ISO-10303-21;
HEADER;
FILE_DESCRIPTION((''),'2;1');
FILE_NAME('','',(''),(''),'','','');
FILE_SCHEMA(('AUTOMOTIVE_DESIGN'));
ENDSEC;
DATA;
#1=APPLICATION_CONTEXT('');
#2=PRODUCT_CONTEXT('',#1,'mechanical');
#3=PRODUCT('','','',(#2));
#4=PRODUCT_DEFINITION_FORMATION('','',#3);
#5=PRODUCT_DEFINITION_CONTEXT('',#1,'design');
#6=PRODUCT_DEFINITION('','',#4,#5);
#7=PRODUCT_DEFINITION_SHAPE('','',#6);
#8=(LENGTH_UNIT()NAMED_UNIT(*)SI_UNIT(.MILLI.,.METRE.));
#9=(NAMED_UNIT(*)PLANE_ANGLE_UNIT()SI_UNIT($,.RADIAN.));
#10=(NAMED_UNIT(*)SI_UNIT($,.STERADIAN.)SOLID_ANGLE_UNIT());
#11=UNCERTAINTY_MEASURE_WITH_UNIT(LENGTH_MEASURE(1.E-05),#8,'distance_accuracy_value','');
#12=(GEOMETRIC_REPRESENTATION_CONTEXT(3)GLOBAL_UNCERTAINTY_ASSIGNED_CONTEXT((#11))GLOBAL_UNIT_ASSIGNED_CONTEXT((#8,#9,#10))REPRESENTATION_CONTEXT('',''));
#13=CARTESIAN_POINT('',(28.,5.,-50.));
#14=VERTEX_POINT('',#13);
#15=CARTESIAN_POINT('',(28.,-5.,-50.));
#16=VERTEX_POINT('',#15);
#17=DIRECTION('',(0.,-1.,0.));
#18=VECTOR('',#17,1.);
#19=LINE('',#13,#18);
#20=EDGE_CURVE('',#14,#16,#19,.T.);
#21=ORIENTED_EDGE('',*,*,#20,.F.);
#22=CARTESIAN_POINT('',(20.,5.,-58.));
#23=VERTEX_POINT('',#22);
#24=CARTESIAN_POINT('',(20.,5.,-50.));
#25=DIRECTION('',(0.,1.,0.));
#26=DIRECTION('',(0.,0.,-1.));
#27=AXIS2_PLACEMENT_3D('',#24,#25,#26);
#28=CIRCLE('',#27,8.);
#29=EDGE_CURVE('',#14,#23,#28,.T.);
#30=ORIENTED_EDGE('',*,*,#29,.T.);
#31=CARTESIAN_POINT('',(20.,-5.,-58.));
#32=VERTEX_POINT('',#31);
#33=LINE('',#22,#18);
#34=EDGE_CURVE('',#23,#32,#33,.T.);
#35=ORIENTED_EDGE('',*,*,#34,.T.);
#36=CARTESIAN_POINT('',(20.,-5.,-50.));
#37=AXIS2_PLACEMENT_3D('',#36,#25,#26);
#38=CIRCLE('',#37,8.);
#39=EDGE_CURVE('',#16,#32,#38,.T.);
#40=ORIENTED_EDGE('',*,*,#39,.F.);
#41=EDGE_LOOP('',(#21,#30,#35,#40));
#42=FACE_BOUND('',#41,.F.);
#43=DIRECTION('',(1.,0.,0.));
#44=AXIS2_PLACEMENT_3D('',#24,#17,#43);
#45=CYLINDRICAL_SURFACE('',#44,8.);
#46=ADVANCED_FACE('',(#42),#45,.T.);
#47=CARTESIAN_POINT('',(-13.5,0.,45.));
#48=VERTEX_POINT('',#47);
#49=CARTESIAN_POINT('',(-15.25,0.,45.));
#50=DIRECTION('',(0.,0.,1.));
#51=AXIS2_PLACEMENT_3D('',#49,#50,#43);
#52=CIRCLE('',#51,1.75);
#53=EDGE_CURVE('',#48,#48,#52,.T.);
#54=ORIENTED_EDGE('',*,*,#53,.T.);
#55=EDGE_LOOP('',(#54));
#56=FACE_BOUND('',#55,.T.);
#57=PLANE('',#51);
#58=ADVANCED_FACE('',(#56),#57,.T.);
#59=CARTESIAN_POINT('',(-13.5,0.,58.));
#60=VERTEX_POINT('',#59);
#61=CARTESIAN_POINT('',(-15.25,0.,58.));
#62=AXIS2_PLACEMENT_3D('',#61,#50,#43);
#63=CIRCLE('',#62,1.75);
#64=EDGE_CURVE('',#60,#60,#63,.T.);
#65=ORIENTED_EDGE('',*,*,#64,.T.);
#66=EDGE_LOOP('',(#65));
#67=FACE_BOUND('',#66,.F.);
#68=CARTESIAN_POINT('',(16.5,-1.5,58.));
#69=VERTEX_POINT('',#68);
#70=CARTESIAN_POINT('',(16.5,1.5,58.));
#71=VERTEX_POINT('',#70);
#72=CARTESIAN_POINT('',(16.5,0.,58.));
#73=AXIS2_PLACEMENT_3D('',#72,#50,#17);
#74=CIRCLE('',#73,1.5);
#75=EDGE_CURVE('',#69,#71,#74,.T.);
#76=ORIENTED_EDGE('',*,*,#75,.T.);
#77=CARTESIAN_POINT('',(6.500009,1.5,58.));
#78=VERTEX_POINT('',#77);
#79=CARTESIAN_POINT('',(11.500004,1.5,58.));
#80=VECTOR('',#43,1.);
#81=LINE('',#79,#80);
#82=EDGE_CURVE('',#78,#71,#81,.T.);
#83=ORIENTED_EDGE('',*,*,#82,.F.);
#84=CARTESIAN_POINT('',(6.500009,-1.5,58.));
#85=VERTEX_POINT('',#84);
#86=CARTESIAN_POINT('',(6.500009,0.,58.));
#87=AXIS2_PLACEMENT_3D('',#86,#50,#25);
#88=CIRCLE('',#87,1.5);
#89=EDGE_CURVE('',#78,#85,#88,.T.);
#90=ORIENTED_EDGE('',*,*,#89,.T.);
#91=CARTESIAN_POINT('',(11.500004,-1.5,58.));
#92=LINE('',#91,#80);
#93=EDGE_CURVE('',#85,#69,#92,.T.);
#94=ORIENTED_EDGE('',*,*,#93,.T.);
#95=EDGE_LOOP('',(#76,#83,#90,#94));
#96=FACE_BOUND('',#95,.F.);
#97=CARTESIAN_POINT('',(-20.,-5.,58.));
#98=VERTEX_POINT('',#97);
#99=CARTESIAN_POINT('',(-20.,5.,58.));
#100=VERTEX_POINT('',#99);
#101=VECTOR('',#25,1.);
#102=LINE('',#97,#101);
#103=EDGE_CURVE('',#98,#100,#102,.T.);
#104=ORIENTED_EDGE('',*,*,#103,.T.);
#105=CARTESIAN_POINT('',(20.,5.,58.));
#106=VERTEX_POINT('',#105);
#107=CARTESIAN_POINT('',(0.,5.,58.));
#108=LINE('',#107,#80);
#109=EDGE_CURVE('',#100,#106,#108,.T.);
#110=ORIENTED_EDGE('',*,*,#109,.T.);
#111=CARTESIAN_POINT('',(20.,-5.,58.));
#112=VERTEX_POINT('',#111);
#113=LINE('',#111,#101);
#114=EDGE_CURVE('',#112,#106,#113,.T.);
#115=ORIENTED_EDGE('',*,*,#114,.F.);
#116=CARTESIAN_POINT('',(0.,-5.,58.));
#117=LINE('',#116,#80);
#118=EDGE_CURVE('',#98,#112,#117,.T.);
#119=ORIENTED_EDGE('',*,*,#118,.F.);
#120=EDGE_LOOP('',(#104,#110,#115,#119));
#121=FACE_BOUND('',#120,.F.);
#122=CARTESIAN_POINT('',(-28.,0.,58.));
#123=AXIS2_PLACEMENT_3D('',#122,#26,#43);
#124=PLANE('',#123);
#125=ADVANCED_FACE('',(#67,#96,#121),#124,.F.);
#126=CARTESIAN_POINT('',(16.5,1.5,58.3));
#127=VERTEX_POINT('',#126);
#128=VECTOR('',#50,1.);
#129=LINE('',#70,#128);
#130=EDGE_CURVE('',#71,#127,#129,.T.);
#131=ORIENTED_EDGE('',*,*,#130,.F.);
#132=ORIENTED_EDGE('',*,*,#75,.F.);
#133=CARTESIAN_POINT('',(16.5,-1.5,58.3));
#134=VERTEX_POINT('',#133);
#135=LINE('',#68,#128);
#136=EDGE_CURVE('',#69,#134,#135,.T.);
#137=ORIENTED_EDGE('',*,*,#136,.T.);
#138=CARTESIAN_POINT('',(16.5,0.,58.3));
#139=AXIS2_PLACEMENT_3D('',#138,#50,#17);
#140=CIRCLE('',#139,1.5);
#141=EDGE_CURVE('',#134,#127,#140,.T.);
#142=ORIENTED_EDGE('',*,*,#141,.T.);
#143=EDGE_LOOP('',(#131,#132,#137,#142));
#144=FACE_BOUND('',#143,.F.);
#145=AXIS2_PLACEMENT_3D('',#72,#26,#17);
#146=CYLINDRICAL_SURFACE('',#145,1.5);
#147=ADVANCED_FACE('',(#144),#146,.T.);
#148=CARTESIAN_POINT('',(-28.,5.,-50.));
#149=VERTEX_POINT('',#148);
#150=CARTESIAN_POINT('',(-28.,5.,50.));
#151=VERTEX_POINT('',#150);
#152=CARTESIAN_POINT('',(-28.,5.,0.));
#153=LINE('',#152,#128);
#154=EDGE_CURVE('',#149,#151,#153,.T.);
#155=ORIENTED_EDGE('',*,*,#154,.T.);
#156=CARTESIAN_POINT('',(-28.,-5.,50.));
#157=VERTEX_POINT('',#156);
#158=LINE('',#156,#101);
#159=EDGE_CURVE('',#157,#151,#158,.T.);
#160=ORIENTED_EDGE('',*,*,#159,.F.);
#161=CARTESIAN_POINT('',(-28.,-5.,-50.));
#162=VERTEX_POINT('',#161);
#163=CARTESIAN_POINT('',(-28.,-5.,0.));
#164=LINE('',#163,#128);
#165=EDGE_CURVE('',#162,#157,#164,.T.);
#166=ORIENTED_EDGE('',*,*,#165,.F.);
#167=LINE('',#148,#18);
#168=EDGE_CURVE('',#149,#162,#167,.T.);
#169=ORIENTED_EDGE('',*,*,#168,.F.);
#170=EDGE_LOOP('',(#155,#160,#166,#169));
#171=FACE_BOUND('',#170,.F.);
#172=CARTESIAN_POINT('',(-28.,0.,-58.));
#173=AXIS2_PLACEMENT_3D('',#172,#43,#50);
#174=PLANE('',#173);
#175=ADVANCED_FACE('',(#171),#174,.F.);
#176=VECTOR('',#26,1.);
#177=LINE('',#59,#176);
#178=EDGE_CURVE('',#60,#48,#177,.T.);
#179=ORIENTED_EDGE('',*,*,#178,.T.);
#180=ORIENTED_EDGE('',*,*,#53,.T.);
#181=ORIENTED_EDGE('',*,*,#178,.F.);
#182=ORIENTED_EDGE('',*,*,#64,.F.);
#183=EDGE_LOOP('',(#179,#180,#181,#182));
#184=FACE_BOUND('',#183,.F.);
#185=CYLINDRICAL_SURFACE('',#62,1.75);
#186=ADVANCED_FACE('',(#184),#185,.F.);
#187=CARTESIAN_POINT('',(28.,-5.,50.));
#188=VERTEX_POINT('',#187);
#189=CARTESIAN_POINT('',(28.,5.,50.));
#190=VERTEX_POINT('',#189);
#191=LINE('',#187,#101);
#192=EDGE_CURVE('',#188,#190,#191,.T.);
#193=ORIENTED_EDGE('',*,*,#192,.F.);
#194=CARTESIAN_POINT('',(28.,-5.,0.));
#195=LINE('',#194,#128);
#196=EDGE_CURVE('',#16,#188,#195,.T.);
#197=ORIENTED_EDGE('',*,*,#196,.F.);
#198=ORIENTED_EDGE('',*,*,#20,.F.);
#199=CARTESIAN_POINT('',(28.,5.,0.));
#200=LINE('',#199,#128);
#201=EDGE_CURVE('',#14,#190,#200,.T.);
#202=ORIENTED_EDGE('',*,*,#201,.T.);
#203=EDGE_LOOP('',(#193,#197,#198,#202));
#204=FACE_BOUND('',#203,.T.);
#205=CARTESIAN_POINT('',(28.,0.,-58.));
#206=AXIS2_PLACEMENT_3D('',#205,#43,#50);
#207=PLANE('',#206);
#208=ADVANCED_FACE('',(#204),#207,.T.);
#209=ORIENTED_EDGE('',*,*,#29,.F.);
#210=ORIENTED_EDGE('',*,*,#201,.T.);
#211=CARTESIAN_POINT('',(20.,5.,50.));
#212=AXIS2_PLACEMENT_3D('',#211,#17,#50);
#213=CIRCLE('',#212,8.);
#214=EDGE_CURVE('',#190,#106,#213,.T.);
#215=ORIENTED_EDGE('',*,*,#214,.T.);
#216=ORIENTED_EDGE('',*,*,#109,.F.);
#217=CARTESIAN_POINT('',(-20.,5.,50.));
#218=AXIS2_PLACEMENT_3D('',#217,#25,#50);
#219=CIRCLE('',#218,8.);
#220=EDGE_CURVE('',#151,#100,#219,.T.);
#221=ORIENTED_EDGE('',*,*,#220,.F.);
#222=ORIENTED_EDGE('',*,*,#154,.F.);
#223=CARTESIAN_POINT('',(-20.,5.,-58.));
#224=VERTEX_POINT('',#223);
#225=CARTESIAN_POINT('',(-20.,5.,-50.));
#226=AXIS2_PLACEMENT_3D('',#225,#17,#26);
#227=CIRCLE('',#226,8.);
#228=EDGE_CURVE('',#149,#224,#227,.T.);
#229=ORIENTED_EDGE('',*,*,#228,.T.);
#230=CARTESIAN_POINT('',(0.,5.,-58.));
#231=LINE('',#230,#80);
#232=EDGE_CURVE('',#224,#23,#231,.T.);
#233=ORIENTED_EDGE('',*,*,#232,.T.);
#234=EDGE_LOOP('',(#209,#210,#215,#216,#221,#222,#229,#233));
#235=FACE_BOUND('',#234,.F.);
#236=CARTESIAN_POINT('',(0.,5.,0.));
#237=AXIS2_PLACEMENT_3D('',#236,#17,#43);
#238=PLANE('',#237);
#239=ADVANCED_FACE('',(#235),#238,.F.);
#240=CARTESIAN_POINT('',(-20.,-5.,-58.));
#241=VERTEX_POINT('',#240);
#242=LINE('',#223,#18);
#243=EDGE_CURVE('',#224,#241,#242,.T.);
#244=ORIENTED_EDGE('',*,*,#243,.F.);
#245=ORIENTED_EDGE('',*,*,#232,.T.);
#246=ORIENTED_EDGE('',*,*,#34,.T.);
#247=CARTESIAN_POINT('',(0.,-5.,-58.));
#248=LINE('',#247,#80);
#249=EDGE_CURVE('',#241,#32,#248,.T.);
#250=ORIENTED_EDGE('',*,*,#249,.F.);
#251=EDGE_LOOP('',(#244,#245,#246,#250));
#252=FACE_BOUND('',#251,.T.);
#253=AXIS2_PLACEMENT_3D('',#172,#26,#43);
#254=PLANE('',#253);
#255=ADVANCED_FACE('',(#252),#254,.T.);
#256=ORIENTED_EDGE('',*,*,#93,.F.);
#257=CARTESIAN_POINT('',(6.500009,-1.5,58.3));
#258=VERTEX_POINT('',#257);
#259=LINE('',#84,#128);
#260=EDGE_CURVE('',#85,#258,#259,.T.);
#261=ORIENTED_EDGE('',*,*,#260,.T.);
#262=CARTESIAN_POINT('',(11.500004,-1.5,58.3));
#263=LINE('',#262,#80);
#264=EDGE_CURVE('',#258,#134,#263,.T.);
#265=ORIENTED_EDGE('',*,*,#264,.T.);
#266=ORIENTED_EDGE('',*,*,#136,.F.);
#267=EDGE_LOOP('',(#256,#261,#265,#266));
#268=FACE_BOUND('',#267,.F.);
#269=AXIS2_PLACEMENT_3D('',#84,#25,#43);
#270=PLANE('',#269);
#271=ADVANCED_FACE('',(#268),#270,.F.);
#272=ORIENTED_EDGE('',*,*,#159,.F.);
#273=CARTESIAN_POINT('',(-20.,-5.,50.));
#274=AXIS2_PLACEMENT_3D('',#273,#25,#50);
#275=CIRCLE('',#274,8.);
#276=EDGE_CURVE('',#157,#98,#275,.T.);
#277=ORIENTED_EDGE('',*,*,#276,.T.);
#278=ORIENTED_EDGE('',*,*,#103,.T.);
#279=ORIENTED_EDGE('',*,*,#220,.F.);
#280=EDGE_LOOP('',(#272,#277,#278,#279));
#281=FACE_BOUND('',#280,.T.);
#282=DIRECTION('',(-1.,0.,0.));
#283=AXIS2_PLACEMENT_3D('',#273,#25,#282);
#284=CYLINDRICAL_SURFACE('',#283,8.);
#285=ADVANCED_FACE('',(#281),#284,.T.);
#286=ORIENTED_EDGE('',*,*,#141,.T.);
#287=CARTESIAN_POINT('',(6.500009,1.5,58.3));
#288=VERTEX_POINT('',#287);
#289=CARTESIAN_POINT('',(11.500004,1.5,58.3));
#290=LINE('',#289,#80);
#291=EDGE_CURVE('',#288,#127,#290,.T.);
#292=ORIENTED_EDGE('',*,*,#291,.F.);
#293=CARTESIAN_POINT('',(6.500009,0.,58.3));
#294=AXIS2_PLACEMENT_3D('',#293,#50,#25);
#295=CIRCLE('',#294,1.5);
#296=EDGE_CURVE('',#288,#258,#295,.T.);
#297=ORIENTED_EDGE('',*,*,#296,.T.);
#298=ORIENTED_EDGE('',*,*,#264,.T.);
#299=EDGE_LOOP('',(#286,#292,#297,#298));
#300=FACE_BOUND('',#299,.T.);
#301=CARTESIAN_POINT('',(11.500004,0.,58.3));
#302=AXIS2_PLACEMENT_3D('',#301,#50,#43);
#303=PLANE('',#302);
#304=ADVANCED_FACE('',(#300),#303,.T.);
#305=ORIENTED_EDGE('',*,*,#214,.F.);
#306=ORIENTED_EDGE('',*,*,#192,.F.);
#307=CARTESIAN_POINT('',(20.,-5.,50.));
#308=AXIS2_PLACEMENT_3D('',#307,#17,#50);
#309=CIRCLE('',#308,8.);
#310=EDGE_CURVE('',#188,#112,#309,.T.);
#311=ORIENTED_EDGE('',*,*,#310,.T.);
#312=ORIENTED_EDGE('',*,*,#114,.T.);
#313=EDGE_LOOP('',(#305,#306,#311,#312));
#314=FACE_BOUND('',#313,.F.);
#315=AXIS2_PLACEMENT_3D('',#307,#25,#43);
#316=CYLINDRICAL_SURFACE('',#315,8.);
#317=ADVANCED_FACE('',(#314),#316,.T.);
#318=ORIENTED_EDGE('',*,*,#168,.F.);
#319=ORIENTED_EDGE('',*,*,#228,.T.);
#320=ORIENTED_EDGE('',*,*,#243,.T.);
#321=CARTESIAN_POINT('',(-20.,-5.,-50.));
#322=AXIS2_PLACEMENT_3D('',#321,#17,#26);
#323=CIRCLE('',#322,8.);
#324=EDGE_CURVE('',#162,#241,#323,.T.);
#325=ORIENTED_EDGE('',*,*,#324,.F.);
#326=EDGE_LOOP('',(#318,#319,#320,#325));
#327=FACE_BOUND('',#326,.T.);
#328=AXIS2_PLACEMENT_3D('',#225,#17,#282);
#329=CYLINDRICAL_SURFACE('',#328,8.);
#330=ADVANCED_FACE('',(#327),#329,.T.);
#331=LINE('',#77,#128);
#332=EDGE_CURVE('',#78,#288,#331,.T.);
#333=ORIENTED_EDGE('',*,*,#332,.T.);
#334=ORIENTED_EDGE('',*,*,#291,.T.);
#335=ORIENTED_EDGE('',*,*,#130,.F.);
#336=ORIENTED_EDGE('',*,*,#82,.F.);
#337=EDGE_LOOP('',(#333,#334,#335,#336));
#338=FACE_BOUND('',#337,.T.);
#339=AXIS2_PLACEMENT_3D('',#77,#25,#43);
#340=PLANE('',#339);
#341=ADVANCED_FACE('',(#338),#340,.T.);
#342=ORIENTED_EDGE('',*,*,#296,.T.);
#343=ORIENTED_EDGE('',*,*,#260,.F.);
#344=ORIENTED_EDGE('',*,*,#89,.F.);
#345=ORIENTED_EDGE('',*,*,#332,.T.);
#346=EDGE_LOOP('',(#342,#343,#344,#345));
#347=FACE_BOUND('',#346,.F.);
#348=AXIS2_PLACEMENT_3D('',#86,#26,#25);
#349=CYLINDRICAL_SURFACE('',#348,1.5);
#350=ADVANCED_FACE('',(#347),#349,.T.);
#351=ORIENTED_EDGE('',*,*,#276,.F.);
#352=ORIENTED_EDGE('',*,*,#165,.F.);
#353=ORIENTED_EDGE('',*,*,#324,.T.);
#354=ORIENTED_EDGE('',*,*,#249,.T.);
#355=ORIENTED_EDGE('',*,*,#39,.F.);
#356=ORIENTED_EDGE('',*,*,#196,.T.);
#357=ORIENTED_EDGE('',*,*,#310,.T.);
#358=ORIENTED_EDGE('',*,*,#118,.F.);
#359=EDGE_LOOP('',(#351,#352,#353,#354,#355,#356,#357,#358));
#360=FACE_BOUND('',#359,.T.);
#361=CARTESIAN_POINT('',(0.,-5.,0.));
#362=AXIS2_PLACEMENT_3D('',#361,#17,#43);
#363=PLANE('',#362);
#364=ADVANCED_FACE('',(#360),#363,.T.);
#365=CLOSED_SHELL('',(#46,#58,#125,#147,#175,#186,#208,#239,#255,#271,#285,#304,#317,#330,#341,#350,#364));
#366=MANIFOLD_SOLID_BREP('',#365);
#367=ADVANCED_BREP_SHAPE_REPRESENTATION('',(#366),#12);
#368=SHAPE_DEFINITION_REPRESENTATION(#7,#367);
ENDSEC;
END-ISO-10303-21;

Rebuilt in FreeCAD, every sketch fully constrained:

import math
import FreeCAD as App
import Part
import Sketcher

V = App.Vector
Q = App.Units.Quantity


def edges_at(feature, points):
    """Names of the edges that pass closest to the given points."""
    edges = feature.Shape.Edges
    near = lambda p: min(range(len(edges)), key=lambda i: edges[i].distToShape(Part.Vertex(*p))[0])
    return sorted({f"Edge{near(p) + 1}" for p in points})

doc = App.newDocument("Part")
body = doc.addObject("PartDesign::Body", "Body")

sketch1 = body.newObject("Sketcher::SketchObject", "Sketch")
sketch1.AttachmentSupport = (doc.getObject("XZ_Plane"), [""])
sketch1.MapMode = "FlatFace"
sketch1.addGeometry(Part.LineSegment(V(-28, 58, 0), V(-28, -58, 0)), False)
sketch1.addGeometry(Part.LineSegment(V(-28, -58, 0), V(28, -58, 0)), False)
sketch1.addGeometry(Part.LineSegment(V(28, -58, 0), V(28, 58, 0)), False)
sketch1.addGeometry(Part.LineSegment(V(28, 58, 0), V(-28, 58, 0)), False)
sketch1.addConstraint(Sketcher.Constraint("Coincident", 0, 2, 1, 1))
sketch1.addConstraint(Sketcher.Constraint("Coincident", 1, 2, 2, 1))
sketch1.addConstraint(Sketcher.Constraint("Coincident", 2, 2, 3, 1))
sketch1.addConstraint(Sketcher.Constraint("Coincident", 3, 2, 0, 1))
sketch1.addConstraint(Sketcher.Constraint("Vertical", 0))
sketch1.addConstraint(Sketcher.Constraint("Horizontal", 1))
sketch1.addConstraint(Sketcher.Constraint("Vertical", 2))
sketch1.addConstraint(Sketcher.Constraint("Horizontal", 3))
sketch1.addConstraint(Sketcher.Constraint("Symmetric", 0, 2, 2, 2, -1, 1))
sketch1.addConstraint(Sketcher.Constraint("DistanceX", 1, 1, 1, 2, Q("56 mm")))
sketch1.addConstraint(Sketcher.Constraint("DistanceY", 0, 2, 0, 1, Q("116 mm")))
pad1 = body.newObject("PartDesign::Pad", "Pad")
pad1.Profile = sketch1
pad1.Length = 10
pad1.Midplane = True
doc.recompute()

fillet = body.newObject("PartDesign::Fillet", "Fillet")
fillet.Base = (pad1, edges_at(pad1, [
    (-28, 0, 58),
    (28, 0, 58),
    (28, 0, -58),
    (-28, 0, -58),
]))
fillet.Radius = 8

sketch2 = body.newObject("Sketcher::SketchObject", "Sketch001")
sketch2.AttachmentSupport = (doc.getObject("XY_Plane"), [""])
sketch2.MapMode = "FlatFace"
sketch2.AttachmentOffset = App.Placement(V(0, 0, 58), App.Rotation())
sketch2.addGeometry(Part.Circle(V(-15.2, 0, 0), V(0, 0, 1), 1.8), False)
sketch2.addConstraint(Sketcher.Constraint("PointOnObject", 0, 3, -1))
sketch2.addConstraint(Sketcher.Constraint("Diameter", 0, Q("3.5 mm")))
sketch2.addConstraint(Sketcher.Constraint("DistanceX", 0, 3, -1, 1, Q("15.25 mm")))
pocket1 = body.newObject("PartDesign::Pocket", "Pocket")
pocket1.Profile = sketch2
pocket1.Length = 13

sketch3 = body.newObject("Sketcher::SketchObject", "Sketch002")
sketch3.AttachmentSupport = (doc.getObject("XY_Plane"), [""])
sketch3.MapMode = "FlatFace"
sketch3.AttachmentOffset = App.Placement(V(0, 0, 58), App.Rotation())
sketch3.addGeometry(Part.LineSegment(V(6.5, -1.5, 0), V(16.5, -1.5, 0)), False)
sketch3.addGeometry(Part.ArcOfCircle(Part.Circle(V(16.5, 0, 0), V(0, 0, 1), 1.5), math.radians(-90), math.radians(90)), False)
sketch3.addGeometry(Part.LineSegment(V(16.5, 1.5, 0), V(6.5, 1.5, 0)), False)
sketch3.addGeometry(Part.ArcOfCircle(Part.Circle(V(6.5, 0, 0), V(0, 0, 1), 1.5), math.radians(90), math.radians(270)), False)
sketch3.addConstraint(Sketcher.Constraint("Tangent", 0, 2, 1, 1))
sketch3.addConstraint(Sketcher.Constraint("Tangent", 1, 2, 2, 1))
sketch3.addConstraint(Sketcher.Constraint("Tangent", 2, 2, 3, 1))
sketch3.addConstraint(Sketcher.Constraint("Tangent", 3, 2, 0, 1))
sketch3.addConstraint(Sketcher.Constraint("Horizontal", 0))
sketch3.addConstraint(Sketcher.Constraint("Horizontal", 2))
sketch3.addConstraint(Sketcher.Constraint("PointOnObject", 1, 3, -1))
sketch3.addConstraint(Sketcher.Constraint("Radius", 1, Q("1.5 mm")))
sketch3.addConstraint(Sketcher.Constraint("DistanceX", -1, 1, 1, 3, Q("16.5 mm")))
sketch3.addConstraint(Sketcher.Constraint("DistanceX", 0, 1, 0, 2, Q("9.999991 mm")))
pad2 = body.newObject("PartDesign::Pad", "Pad001")
pad2.Profile = sketch3
pad2.Length = 0.3

doc.recompute()
